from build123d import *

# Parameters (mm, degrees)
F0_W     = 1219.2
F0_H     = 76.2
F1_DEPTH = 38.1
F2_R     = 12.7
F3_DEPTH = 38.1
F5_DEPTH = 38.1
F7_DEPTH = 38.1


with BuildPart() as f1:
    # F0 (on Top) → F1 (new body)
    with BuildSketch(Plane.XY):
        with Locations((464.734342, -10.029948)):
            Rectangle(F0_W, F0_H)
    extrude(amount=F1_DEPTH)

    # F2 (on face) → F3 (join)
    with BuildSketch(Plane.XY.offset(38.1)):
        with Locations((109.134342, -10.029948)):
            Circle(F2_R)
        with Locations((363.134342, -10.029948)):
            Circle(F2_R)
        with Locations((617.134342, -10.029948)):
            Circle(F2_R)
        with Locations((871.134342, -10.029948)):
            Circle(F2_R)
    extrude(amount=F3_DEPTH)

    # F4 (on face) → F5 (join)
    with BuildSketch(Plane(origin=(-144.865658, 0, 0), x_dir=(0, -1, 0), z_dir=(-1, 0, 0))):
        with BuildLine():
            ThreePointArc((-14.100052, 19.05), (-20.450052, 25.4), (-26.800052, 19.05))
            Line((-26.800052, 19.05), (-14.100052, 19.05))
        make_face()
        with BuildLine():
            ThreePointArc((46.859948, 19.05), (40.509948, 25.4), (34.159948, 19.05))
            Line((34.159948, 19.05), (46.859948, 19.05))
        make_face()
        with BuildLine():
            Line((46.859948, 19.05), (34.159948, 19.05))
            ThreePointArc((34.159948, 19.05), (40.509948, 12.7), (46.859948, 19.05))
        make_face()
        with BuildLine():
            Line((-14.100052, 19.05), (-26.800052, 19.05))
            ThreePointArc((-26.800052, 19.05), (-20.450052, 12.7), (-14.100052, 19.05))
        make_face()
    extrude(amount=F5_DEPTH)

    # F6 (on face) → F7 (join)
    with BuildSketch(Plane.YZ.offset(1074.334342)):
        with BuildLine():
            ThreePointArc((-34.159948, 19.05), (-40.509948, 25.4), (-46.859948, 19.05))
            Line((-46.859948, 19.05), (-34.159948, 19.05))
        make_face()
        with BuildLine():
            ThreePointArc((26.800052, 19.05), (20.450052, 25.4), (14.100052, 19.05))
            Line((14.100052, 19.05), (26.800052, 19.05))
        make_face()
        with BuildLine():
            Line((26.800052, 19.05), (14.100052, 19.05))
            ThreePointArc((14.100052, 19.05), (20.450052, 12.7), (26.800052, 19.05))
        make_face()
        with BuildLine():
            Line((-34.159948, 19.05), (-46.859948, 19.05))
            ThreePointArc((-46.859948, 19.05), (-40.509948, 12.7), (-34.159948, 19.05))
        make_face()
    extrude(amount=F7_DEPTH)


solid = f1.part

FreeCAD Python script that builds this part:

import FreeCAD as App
import Part
import Sketcher

V = App.Vector
Q = App.Units.Quantity

doc = App.newDocument("Part")
body = doc.addObject("PartDesign::Body", "Body")

# Sketch on XY plane
sketch1 = doc.addObject("Sketcher::SketchObject", "Sketch")
body.addObject(sketch1)
sketch1.AttachmentSupport = (doc.XY_Plane, [""])
sketch1.MapMode = "FlatFace"
sketch1.addGeometry([
    Part.LineSegment(V(-145, 28, 0), V(-145, -48, 0)),
    Part.LineSegment(V(-145, -48, 0), V(1074, -48, 0)),
    Part.LineSegment(V(1074, -48, 0), V(1074, 28, 0)),
    Part.LineSegment(V(1074, 28, 0), V(-145, 28, 0)),
], False)
sketch1.addConstraint([
    Sketcher.Constraint("Coincident", 0, 2, 1, 1),
    Sketcher.Constraint("Coincident", 1, 2, 2, 1),
    Sketcher.Constraint("Coincident", 2, 2, 3, 1),
    Sketcher.Constraint("Coincident", 3, 2, 0, 1),
    Sketcher.Constraint("Vertical", 0),
    Sketcher.Constraint("Horizontal", 1),
    Sketcher.Constraint("Vertical", 2),
    Sketcher.Constraint("Horizontal", 3),
    Sketcher.Constraint("DistanceX", 1, 1, 1, 2, Q("48 in")),
    Sketcher.Constraint("DistanceY", 0, 2, 0, 1, Q("3 in")),
    Sketcher.Constraint("DistanceX", 0, 2, -1, 1, 144.865658),
    Sketcher.Constraint("DistanceY", 0, 2, -1, 1, 48.129948),
])
pad1 = doc.addObject("PartDesign::Pad", "Pad")
body.addObject(pad1)
pad1.Profile = sketch1
pad1.Length = Q("1.5 in")

# Sketch on XY plane
sketch2 = doc.addObject("Sketcher::SketchObject", "Sketch001")
body.addObject(sketch2)
sketch2.AttachmentSupport = (doc.XY_Plane, [""])
sketch2.MapMode = "FlatFace"
sketch2.AttachmentOffset = App.Placement(V(0, 0, 1.5 * 25.4), App.Rotation())
sketch2.addGeometry([
    Part.Circle(V(109, -10, 0), V(0, 0, 1), 13),
    Part.Circle(V(363, -10, 0), V(0, 0, 1), 13),
    Part.Circle(V(617, -10, 0), V(0, 0, 1), 13),
    Part.Circle(V(871, -10, 0), V(0, 0, 1), 13),
], False)
sketch2.addConstraint([
    Sketcher.Constraint("Equal", 0, 1),
    Sketcher.Constraint("Equal", 1, 2),
    Sketcher.Constraint("Equal", 2, 3),
    Sketcher.Constraint("Horizontal", 0, 3, 1, 3),
    Sketcher.Constraint("Horizontal", 1, 3, 2, 3),
    Sketcher.Constraint("Horizontal", 2, 3, 3, 3),
    Sketcher.Constraint("Diameter", 0, Q("1 in")),
    Sketcher.Constraint("DistanceX", 0, 3, 1, 3, Q("10 in")),
    Sketcher.Constraint("DistanceX", 1, 3, 2, 3, Q("10 in")),
    Sketcher.Constraint("DistanceX", 2, 3, 3, 3, Q("10 in")),
    Sketcher.Constraint("DistanceX", -1, 1, 1, 3, 363.134342),
    Sketcher.Constraint("DistanceY", 0, 3, -1, 1, 10.029948),
])
pad2 = doc.addObject("PartDesign::Pad", "Pad001")
body.addObject(pad2)
pad2.Profile = sketch2
pad2.Length = Q("1.5 in")

# Sketch on YZ plane
sketch3 = doc.addObject("Sketcher::SketchObject", "Sketch002")
body.addObject(sketch3)
sketch3.AttachmentSupport = (doc.YZ_Plane, [""])
sketch3.MapMode = "FlatFace"
sketch3.AttachmentOffset = App.Placement(V(0, 0, -144.865658), App.Rotation())
sketch3.addGeometry([
    Part.Circle(V(20, 19, 0), V(0, 0, 1), 6),
    Part.Circle(V(-41, 19, 0), V(0, 0, 1), 6),
], False)
sketch3.addConstraint([
    Sketcher.Constraint("Equal", 0, 1),
    Sketcher.Constraint("Horizontal", 0, 3, 1, 3),
    Sketcher.Constraint("Diameter", 0, Q("0.5 in")),
    Sketcher.Constraint("DistanceX", 1, 3, 0, 3, Q("2.4 in")),
    Sketcher.Constraint("DistanceY", -1, 1, 0, 3, Q("0.75 in")),
    Sketcher.Constraint("DistanceX", -1, 1, 0, 3, 20.450052),
])
pad3 = doc.addObject("PartDesign::Pad", "Pad002")
body.addObject(pad3)
pad3.Profile = sketch3
pad3.Length = Q("1.5 in")
pad3.Reversed = True

# Sketch on YZ plane
sketch4 = doc.addObject("Sketcher::SketchObject", "Sketch003")
body.addObject(sketch4)
sketch4.AttachmentSupport = (doc.YZ_Plane, [""])
sketch4.MapMode = "FlatFace"
sketch4.AttachmentOffset = App.Placement(V(0, 0, 1074.334342), App.Rotation())
sketch4.addGeometry([
    Part.Circle(V(-41, 19, 0), V(0, 0, 1), 6),
    Part.Circle(V(20, 19, 0), V(0, 0, 1), 6),
], False)
sketch4.addConstraint([
    Sketcher.Constraint("Equal", 0, 1),
    Sketcher.Constraint("Horizontal", 0, 3, 1, 3),
    Sketcher.Constraint("Diameter", 0, Q("0.5 in")),
    Sketcher.Constraint("DistanceX", 0, 3, 1, 3, Q("2.4 in")),
    Sketcher.Constraint("DistanceY", -1, 1, 0, 3, Q("0.75 in")),
    Sketcher.Constraint("DistanceX", -1, 1, 1, 3, 20.450052),
])
pad4 = doc.addObject("PartDesign::Pad", "Pad003")
body.addObject(pad4)
pad4.Profile = sketch4
pad4.Length = Q("1.5 in")

doc.recompute()
